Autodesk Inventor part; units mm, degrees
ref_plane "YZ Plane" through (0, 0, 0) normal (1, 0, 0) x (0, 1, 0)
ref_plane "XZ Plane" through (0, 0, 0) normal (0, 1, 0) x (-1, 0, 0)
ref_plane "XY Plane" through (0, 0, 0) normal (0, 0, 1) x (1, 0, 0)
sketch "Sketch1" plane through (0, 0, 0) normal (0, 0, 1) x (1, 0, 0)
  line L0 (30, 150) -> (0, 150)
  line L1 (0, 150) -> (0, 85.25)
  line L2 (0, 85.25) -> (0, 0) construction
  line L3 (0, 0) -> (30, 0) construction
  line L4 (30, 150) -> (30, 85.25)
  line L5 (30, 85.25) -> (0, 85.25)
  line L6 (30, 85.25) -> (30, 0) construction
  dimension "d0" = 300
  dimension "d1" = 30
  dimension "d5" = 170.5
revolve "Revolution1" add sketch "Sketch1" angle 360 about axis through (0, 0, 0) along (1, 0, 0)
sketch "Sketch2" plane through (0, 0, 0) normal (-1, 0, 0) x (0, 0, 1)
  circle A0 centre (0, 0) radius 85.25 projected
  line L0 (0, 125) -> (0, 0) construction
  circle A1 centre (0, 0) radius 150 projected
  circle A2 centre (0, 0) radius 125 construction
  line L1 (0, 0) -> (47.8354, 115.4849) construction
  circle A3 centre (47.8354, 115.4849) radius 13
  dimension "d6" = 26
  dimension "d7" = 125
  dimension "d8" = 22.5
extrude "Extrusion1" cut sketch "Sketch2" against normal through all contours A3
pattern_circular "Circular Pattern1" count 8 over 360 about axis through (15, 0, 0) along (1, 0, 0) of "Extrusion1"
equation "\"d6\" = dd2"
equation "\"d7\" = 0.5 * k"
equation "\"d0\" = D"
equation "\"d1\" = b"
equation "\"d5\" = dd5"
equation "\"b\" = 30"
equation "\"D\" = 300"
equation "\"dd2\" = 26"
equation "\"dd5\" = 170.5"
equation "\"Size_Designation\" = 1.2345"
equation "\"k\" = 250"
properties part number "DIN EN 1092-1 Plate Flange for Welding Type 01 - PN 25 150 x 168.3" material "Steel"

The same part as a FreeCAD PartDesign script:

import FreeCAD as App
import Part
import Sketcher
from FreeCAD import Vector


def add_polygon(sketch, points):
    """Adds a closed chain of lines whose ends are joined by coincident constraints."""
    first, n = sketch.GeometryCount, len(points)
    for a, b in zip(points, points[1:] + points[:1]):
        sketch.addGeometry(Part.LineSegment(App.Vector(*a, 0), App.Vector(*b, 0)), False)
    for i in range(n):
        sketch.addConstraint(Sketcher.Constraint("Coincident", first + i, 2, first + (i + 1) % n, 1))

doc = App.newDocument("Part")
body = doc.addObject("PartDesign::Body", "Body")

# Sketch on XY plane
sketch1 = body.newObject("Sketcher::SketchObject", "Sketch")
sketch1.AttachmentSupport = (doc.getObject("XY_Plane"), [""])
sketch1.MapMode = "FlatFace"
add_polygon(sketch1, [(30, 85), (30, 150), (0, 150), (0, 85)])  # lines 0-3
sketch1.addConstraint(Sketcher.Constraint("Vertical", 0))
sketch1.addConstraint(Sketcher.Constraint("Horizontal", 1))
sketch1.addConstraint(Sketcher.Constraint("Vertical", 2))
sketch1.addConstraint(Sketcher.Constraint("Horizontal", 3))
sketch1.addConstraint(Sketcher.Constraint("PointOnObject", 1, 2, -2))
sketch1.addConstraint(Sketcher.Constraint("DistanceX", 1, 2, 1, 1, 30.0))
sketch1.addConstraint(Sketcher.Constraint("DistanceY", -1, 1, 0, 2, 150.0))
sketch1.addConstraint(Sketcher.Constraint("DistanceY", 0, 1, 0, 2, 64.75))
revolution = body.newObject("PartDesign::Revolution", "Revolution")
revolution.Profile = sketch1
revolution.ReferenceAxis = (sketch1, ["H_Axis"])
revolution.Angle = 360

# Sketch on YZ plane
sketch2 = body.newObject("Sketcher::SketchObject", "Sketch001")
sketch2.AttachmentSupport = (doc.getObject("YZ_Plane"), [""])
sketch2.MapMode = "FlatFace"
sketch2.addGeometry(Part.Circle(Vector(115, 48, 0), Vector(0, 0, 1), 13), False)
sketch2.addConstraint(Sketcher.Constraint("Diameter", 0, 26.0))
sketch2.addConstraint(Sketcher.Constraint("DistanceX", -1, 1, 0, 3, 115.485))
sketch2.addConstraint(Sketcher.Constraint("DistanceY", -1, 1, 0, 3, 47.8354))
pocket1 = body.newObject("PartDesign::Pocket", "Pocket")
pocket1.Profile = sketch2
pocket1.Type = "ThroughAll"
pocket1.Reversed = True
doc.recompute()

polarpattern = body.newObject("PartDesign::PolarPattern", "PolarPattern")
polarpattern.Originals = [pocket1]
polarpattern.Axis = (doc.getObject("X_Axis"), [""])
polarpattern.Angle = 360
polarpattern.Occurrences = 8
body.Tip = polarpattern

doc.recompute()
